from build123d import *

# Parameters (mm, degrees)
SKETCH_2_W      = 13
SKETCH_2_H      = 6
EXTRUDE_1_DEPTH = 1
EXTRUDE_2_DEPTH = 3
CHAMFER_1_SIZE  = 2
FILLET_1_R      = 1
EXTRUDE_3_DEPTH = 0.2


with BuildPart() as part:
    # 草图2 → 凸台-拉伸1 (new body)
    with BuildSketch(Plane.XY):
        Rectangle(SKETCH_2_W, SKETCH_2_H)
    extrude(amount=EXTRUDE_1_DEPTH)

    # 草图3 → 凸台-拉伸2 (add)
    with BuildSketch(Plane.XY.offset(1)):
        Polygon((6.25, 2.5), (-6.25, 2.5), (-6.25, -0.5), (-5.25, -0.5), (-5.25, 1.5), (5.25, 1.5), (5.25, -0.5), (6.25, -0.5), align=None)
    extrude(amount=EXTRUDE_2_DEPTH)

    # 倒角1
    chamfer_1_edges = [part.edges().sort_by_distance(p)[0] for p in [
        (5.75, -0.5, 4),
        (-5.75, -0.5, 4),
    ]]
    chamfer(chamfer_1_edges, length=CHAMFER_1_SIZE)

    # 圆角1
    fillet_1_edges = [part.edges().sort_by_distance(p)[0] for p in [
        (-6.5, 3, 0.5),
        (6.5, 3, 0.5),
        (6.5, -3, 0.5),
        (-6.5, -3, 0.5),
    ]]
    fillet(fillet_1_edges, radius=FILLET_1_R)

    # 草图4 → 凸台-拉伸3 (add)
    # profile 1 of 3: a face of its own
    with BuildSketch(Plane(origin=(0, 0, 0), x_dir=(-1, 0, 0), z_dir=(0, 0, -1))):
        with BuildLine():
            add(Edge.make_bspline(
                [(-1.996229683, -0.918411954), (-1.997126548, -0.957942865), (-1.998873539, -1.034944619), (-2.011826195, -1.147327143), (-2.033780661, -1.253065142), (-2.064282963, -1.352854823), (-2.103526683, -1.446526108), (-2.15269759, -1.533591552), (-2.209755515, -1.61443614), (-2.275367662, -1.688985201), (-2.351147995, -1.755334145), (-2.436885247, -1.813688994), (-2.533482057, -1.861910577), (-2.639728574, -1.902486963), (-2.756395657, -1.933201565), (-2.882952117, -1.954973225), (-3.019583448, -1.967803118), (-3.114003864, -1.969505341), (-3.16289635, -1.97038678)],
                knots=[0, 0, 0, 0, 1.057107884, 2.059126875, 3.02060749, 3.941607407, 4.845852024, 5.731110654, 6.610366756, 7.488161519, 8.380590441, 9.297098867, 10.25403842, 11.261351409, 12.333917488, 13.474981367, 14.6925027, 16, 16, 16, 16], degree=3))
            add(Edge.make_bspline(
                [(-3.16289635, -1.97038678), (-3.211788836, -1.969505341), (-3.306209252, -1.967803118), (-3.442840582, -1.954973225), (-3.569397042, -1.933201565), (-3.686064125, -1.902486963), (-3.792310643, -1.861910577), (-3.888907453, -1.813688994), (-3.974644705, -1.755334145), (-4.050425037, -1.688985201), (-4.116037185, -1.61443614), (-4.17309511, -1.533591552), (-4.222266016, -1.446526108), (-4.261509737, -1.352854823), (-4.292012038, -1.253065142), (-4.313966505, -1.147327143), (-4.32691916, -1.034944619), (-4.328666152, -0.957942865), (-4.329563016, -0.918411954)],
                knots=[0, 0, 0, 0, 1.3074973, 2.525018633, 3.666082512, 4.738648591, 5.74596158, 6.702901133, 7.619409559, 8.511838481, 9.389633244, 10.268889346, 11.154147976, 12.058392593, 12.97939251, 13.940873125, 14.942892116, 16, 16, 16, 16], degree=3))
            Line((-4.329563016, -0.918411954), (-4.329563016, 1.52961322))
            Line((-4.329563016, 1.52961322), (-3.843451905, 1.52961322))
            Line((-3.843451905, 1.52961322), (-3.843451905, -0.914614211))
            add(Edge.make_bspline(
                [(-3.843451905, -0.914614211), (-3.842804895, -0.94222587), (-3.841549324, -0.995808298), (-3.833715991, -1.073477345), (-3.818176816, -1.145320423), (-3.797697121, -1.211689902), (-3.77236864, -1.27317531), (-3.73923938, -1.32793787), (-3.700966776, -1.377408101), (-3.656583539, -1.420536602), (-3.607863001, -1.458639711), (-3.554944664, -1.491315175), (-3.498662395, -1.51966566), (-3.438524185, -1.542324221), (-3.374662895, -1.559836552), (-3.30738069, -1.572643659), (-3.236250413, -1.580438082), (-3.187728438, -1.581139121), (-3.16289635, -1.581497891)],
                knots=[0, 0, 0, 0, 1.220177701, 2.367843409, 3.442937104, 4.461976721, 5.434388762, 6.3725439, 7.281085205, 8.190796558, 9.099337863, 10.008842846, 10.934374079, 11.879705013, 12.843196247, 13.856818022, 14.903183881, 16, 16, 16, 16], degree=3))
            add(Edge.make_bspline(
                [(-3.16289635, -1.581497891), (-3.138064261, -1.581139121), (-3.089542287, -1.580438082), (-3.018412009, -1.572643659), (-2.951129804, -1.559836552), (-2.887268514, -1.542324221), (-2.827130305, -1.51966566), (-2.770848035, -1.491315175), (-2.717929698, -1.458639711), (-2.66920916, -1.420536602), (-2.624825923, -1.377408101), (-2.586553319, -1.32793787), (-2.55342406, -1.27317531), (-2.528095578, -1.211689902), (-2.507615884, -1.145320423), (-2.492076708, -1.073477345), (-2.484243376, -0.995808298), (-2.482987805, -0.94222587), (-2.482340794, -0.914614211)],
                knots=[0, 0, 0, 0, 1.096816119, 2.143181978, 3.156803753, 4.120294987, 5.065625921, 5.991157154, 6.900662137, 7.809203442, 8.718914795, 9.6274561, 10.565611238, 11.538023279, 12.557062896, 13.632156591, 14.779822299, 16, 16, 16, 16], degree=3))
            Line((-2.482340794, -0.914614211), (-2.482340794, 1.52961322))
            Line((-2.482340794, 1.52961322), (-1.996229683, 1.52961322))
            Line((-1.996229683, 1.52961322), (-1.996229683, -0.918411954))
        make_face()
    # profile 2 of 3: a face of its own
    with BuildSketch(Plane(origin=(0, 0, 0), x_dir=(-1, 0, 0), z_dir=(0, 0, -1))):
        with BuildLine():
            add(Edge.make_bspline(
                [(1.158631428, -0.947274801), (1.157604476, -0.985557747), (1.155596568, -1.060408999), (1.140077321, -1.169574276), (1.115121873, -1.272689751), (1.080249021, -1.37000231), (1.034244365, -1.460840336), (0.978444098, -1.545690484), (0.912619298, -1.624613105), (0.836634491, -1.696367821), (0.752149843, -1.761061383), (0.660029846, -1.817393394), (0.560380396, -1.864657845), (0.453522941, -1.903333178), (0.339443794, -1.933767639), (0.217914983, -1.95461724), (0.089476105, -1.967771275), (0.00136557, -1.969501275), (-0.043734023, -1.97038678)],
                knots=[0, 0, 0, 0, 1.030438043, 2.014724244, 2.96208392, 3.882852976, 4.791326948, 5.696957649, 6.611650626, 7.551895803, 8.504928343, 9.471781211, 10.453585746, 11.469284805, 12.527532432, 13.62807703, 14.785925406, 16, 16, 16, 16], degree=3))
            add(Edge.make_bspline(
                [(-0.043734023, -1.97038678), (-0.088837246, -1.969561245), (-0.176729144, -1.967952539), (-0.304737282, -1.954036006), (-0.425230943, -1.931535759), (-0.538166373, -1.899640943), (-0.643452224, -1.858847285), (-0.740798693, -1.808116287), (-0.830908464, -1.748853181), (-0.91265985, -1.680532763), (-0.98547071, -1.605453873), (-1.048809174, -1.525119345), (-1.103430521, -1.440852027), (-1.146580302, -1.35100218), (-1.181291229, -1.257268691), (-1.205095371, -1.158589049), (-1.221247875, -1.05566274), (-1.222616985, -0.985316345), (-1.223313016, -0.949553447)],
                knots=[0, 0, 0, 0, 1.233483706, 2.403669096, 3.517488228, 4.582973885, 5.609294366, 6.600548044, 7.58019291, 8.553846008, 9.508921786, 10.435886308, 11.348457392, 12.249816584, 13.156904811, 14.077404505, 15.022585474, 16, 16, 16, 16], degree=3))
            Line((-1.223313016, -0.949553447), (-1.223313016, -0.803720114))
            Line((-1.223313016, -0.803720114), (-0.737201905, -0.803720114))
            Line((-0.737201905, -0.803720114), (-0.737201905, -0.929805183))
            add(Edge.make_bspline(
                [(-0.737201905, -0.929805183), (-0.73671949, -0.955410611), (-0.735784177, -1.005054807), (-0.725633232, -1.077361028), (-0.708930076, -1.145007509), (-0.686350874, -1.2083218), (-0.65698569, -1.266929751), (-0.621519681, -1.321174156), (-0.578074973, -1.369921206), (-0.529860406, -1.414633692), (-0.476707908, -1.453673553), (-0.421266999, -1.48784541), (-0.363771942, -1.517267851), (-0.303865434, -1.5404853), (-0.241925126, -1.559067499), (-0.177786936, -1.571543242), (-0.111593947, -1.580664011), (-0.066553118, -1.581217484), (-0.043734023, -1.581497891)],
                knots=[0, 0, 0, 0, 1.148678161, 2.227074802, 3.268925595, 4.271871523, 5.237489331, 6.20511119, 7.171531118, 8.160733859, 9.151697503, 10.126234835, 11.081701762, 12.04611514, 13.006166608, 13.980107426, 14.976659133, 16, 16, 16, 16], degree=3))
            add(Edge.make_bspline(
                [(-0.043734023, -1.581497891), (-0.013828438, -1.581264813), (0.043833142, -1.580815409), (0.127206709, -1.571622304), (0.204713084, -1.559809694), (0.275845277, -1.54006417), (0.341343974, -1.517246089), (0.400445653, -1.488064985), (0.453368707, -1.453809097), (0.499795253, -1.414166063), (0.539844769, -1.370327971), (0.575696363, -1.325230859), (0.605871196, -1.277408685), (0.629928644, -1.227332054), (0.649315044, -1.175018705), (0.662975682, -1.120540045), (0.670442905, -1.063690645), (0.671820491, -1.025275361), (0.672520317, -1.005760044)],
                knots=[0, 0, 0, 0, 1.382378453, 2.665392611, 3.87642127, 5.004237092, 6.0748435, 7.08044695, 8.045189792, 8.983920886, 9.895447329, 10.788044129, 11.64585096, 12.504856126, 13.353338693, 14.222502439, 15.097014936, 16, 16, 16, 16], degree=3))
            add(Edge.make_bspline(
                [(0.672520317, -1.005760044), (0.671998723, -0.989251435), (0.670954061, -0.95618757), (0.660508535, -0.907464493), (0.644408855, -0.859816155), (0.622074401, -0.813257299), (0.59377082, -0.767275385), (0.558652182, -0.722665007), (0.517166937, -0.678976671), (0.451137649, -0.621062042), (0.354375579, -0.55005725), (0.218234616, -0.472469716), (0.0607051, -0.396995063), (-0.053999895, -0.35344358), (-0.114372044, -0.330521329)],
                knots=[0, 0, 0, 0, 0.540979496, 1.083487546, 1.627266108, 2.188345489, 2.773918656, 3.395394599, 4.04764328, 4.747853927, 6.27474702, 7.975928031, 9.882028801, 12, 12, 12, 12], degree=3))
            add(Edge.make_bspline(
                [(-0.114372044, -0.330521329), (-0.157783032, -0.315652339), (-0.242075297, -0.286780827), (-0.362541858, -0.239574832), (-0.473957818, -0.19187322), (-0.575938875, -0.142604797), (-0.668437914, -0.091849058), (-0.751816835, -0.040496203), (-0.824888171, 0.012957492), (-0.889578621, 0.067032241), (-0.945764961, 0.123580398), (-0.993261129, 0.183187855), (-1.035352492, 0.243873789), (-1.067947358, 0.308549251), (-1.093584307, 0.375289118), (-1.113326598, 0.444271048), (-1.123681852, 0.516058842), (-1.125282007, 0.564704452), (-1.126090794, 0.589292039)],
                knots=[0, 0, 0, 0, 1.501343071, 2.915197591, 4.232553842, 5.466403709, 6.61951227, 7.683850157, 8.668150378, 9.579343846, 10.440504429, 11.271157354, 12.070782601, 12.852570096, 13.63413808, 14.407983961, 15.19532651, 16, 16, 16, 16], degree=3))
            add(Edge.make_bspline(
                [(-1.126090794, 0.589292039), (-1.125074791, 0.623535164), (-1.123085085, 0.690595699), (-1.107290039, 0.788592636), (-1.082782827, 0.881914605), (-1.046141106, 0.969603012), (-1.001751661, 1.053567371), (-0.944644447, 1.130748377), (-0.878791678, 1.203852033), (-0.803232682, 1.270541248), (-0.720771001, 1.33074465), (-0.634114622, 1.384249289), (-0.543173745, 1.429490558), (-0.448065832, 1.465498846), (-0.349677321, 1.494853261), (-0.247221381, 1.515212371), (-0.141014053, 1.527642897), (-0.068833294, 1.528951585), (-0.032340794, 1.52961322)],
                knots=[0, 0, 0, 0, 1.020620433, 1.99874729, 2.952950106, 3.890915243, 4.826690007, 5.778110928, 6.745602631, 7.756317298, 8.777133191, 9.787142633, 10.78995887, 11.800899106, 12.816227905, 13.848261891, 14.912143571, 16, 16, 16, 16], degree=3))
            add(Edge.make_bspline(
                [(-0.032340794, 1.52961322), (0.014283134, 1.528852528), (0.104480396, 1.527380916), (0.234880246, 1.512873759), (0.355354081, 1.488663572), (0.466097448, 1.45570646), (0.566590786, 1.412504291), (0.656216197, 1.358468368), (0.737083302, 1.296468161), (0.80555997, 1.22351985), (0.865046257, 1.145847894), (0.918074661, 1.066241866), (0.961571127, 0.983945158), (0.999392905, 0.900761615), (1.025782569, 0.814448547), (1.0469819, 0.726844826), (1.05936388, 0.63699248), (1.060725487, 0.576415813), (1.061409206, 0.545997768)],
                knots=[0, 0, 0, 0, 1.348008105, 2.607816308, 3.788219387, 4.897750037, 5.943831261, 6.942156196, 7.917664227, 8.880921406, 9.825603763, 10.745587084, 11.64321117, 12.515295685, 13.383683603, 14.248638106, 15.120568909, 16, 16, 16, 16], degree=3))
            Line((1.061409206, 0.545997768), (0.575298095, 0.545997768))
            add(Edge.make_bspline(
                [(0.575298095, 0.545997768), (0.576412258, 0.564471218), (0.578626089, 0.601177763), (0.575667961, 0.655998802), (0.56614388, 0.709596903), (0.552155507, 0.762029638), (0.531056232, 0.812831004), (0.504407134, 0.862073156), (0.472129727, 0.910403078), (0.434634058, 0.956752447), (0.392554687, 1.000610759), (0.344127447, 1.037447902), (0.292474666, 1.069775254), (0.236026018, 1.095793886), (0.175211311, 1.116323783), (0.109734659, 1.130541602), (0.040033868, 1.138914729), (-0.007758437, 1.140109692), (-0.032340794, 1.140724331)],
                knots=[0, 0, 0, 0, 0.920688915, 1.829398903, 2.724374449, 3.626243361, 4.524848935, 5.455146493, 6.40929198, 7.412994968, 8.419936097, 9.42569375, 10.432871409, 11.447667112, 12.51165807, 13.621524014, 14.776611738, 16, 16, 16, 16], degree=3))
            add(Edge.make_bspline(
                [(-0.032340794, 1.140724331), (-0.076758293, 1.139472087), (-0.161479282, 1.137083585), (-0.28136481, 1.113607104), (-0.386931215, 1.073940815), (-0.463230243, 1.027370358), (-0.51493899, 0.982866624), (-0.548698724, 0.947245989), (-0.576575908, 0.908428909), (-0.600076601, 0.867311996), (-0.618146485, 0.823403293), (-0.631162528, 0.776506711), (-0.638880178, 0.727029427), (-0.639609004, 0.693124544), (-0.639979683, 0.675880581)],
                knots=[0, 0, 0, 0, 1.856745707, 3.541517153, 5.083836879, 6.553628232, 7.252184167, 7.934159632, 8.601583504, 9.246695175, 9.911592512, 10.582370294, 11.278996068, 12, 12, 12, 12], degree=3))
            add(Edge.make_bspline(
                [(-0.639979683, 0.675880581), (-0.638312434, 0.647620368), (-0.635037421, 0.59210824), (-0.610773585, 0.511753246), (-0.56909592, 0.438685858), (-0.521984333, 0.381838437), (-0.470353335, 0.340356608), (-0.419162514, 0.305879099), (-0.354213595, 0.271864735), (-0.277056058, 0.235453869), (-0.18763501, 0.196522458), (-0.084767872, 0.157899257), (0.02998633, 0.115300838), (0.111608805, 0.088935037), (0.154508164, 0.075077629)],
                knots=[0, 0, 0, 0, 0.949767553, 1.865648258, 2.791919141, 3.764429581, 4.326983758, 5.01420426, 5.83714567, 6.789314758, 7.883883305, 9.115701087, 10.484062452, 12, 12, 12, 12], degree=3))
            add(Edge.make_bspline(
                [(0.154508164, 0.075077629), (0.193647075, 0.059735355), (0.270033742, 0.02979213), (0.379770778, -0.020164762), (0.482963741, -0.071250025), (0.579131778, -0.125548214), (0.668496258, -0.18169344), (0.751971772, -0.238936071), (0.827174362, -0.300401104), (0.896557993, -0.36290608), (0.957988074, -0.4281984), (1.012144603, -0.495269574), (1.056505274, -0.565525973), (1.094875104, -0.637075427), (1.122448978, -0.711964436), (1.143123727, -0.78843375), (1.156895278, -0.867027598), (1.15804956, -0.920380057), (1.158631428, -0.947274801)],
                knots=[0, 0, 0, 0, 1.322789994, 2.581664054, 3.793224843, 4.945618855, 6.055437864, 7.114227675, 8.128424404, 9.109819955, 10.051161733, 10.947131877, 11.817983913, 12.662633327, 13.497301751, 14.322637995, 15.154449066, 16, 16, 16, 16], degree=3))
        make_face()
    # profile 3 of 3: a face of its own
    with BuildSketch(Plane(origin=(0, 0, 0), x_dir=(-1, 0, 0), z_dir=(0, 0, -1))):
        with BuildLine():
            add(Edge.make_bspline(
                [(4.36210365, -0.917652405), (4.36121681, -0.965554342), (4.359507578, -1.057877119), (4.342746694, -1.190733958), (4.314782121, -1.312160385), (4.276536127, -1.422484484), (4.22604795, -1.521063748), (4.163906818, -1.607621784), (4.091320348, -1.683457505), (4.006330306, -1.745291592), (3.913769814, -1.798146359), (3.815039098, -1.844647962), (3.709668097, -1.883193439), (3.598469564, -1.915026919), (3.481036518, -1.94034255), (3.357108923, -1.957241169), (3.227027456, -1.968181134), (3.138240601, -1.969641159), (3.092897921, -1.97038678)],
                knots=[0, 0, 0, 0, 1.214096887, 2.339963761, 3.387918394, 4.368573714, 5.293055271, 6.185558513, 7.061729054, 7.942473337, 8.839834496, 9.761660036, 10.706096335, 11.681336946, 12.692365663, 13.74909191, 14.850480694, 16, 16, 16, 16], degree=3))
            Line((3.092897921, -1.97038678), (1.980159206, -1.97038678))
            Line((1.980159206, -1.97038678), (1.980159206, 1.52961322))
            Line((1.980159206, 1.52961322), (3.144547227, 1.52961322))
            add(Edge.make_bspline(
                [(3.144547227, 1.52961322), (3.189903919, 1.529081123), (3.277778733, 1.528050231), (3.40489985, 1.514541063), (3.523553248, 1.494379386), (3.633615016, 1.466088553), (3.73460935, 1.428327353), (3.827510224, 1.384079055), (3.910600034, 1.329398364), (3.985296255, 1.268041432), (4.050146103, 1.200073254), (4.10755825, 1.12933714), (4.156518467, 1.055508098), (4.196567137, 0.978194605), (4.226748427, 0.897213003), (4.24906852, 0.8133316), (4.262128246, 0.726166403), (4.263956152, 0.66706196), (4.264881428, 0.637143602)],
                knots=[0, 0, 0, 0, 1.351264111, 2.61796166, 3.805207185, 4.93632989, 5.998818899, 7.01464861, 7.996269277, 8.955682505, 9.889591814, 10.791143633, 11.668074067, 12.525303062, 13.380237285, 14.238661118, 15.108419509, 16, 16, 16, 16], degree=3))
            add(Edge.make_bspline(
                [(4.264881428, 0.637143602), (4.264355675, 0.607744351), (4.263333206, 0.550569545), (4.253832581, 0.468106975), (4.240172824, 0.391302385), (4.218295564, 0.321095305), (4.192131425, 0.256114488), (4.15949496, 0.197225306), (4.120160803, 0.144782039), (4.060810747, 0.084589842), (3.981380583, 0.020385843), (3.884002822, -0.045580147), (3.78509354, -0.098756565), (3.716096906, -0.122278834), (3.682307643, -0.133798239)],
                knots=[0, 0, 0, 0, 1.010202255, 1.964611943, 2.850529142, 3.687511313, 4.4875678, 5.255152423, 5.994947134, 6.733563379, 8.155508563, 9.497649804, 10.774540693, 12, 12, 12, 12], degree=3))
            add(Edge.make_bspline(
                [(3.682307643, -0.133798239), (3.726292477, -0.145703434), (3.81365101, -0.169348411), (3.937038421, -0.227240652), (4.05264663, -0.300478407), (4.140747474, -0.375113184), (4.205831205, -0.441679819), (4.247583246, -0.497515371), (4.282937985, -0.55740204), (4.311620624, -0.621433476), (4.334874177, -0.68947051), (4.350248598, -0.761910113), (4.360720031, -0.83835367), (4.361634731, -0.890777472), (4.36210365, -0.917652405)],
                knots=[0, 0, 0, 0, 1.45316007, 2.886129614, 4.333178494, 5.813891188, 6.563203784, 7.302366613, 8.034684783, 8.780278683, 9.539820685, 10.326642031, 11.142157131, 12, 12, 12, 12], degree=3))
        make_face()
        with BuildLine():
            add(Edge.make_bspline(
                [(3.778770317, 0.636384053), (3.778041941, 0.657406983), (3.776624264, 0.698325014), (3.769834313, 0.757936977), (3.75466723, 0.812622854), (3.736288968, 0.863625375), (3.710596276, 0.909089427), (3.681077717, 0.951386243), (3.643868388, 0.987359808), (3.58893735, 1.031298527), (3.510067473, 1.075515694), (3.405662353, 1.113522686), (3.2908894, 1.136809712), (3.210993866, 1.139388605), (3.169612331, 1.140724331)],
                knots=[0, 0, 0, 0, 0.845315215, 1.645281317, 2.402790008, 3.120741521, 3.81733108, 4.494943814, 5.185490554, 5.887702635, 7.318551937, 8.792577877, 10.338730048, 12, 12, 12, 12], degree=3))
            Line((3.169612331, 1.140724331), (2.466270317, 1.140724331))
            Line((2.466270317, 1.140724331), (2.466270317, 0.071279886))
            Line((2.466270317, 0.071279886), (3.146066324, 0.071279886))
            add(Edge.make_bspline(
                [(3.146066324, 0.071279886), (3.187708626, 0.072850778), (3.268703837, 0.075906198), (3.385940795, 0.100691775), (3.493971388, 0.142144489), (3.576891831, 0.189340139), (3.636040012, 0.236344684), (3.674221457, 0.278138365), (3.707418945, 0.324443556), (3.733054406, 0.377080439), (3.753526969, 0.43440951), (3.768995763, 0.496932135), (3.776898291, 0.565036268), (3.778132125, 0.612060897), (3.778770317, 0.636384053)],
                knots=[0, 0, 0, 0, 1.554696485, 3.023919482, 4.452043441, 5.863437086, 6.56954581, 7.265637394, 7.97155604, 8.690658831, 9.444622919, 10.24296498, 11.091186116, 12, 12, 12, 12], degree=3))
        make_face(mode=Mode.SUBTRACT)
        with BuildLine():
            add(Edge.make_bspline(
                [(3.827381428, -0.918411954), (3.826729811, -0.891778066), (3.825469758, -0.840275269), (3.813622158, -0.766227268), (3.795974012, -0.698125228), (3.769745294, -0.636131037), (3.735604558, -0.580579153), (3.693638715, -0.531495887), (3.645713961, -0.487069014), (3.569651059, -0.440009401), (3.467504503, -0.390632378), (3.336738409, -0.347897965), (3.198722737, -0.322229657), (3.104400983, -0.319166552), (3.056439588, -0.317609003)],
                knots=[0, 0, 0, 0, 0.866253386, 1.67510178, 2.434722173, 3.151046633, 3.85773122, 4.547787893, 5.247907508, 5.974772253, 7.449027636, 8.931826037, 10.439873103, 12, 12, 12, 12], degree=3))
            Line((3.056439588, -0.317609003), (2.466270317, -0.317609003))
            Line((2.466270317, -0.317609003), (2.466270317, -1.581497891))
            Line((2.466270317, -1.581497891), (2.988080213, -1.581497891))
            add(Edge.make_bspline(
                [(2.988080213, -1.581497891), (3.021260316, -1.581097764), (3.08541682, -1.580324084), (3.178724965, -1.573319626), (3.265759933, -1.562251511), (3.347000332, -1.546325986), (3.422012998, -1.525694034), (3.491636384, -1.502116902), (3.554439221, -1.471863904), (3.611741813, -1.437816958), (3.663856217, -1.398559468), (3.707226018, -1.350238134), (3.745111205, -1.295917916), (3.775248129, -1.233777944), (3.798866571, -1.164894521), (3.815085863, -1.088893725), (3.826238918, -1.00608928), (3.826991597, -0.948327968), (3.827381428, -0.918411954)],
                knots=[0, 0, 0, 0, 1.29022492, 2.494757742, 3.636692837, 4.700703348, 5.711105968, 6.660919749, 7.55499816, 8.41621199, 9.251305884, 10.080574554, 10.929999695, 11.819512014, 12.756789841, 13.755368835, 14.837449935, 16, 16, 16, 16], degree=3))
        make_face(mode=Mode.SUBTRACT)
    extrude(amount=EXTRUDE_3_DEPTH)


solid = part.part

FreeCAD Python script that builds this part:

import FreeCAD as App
import Part
import Sketcher


def edges_at(feature, points):
    """Names of the edges that pass closest to the given points."""
    edges = feature.Shape.Edges
    near = lambda p: min(range(len(edges)), key=lambda i: edges[i].distToShape(Part.Vertex(*p))[0])
    return sorted({f"Edge{near(p) + 1}" for p in points})


def add_polygon(sketch, points):
    """Adds a closed chain of lines whose ends are joined by coincident constraints."""
    first, n = sketch.GeometryCount, len(points)
    for a, b in zip(points, points[1:] + points[:1]):
        sketch.addGeometry(Part.LineSegment(App.Vector(*a, 0), App.Vector(*b, 0)), False)
    for i in range(n):
        sketch.addConstraint(Sketcher.Constraint("Coincident", first + i, 2, first + (i + 1) % n, 1))

doc = App.newDocument("Part")
body = doc.addObject("PartDesign::Body", "Body")

# Sketch on XY plane
sketch1 = body.newObject("Sketcher::SketchObject", "Sketch")
sketch1.AttachmentSupport = (doc.getObject("XY_Plane"), [""])
sketch1.MapMode = "FlatFace"
add_polygon(sketch1, [(-6.5, 3), (-6.5, -3), (6.5, -3), (6.5, 3)])  # lines 0-3
sketch1.addConstraint([
    Sketcher.Constraint("Vertical", 0),
    Sketcher.Constraint("Horizontal", 1),
    Sketcher.Constraint("Vertical", 2),
    Sketcher.Constraint("Horizontal", 3),
    Sketcher.Constraint("Symmetric", 0, 2, 2, 2, -1, 1),
    Sketcher.Constraint("DistanceX", 1, 1, 1, 2, 13.0),
    Sketcher.Constraint("DistanceY", 0, 2, 0, 1, 6.0),
])
pad1 = body.newObject("PartDesign::Pad", "Pad")
pad1.Profile = sketch1
pad1.Length = 1

# Sketch on XY plane
sketch2 = body.newObject("Sketcher::SketchObject", "Sketch001")
sketch2.AttachmentSupport = (doc.getObject("XY_Plane"), [""])
sketch2.MapMode = "FlatFace"
sketch2.AttachmentOffset = App.Placement(App.Vector(0, 0, 1), App.Rotation())
add_polygon(sketch2, [(6.25, 2.5), (-6.25, 2.5), (-6.25, -0.5), (-5.25, -0.5), (-5.25, 1.5), (5.25, 1.5), (5.25, -0.5), (6.25, -0.5)])  # lines 0-7
sketch2.addConstraint([
    Sketcher.Constraint("Horizontal", 0),
    Sketcher.Constraint("Vertical", 1),
    Sketcher.Constraint("Horizontal", 2),
    Sketcher.Constraint("Vertical", 3),
    Sketcher.Constraint("Horizontal", 4),
    Sketcher.Constraint("Vertical", 5),
    Sketcher.Constraint("Horizontal", 6),
    Sketcher.Constraint("Vertical", 7),
    Sketcher.Constraint("Symmetric", 2, 2, 5, 2, -2),
    Sketcher.Constraint("Equal", 2, 6),
    Sketcher.Constraint("DistanceX", 2, 1, 2, 2, 1.0),
    Sketcher.Constraint("DistanceY", 1, 2, 1, 1, 3.0),
    Sketcher.Constraint("DistanceY", 3, 1, 3, 2, 2.0),
    Sketcher.Constraint("DistanceX", 0, 2, 0, 1, 12.5),
    Sketcher.Constraint("DistanceY", -1, 1, 0, 2, 2.5),
])
pad2 = body.newObject("PartDesign::Pad", "Pad001")
pad2.Profile = sketch2
pad2.Length = 3
doc.recompute()

chamfer = body.newObject("PartDesign::Chamfer", "Chamfer")
chamfer.Base = (pad2, edges_at(pad2, [(5.75, -0.5, 4), (-5.75, -0.5, 4)]))
chamfer.Size = 2
doc.recompute()

fillet = body.newObject("PartDesign::Fillet", "Fillet")
fillet.Base = (chamfer, edges_at(chamfer, [
    (-6.5, 3, 0.5),
    (6.5, 3, 0.5),
    (6.5, -3, 0.5),
    (-6.5, -3, 0.5),
]))
fillet.Radius = 1

# Sketch on XY plane
sketch3 = body.newObject("Sketcher::SketchObject", "Sketch002")
sketch3.AttachmentSupport = (doc.getObject("XY_Plane"), [""])
sketch3.MapMode = "FlatFace"
sketch3.addGeometry([
    Part.BSplineCurve([App.Vector(1.99623, -0.918412, 0), App.Vector(1.997127, -0.957943, 0), App.Vector(1.998874, -1.034945, 0), App.Vector(2.011826, -1.147327, 0), App.Vector(2.033781, -1.253065, 0), App.Vector(2.064283, -1.352855, 0), App.Vector(2.103527, -1.446526, 0), App.Vector(2.152698, -1.533592, 0), App.Vector(2.209756, -1.614436, 0), App.Vector(2.275368, -1.688985, 0), App.Vector(2.351148, -1.755334, 0), App.Vector(2.436885, -1.813689, 0), App.Vector(2.533482, -1.861911, 0), App.Vector(2.639729, -1.902487, 0), App.Vector(2.756396, -1.933202, 0), App.Vector(2.882952, -1.954973, 0), App.Vector(3.019583, -1.967803, 0), App.Vector(3.114004, -1.969505, 0), App.Vector(3.162896, -1.970387, 0)], [4, 1, 1, 1, 1, 1, 1, 1, 1, 1, 1, 1, 1, 1, 1, 1, 4], [0, 1.057107884, 2.059126875, 3.02060749, 3.941607407, 4.845852024, 5.731110654, 6.610366756, 7.488161519, 8.380590441, 9.297098867, 10.25403842, 11.261351409, 12.333917488, 13.474981367, 14.6925027, 16], False, 3, [1, 1, 1, 1, 1, 1, 1, 1, 1, 1, 1, 1, 1, 1, 1, 1, 1, 1, 1], False),  # 0
    Part.LineSegment(App.Vector(1.99623, -0.918412, 0), App.Vector(1.99623, 1.529613, 0)),  # 1
    Part.LineSegment(App.Vector(1.99623, 1.529613, 0), App.Vector(2.482341, 1.529613, 0)),  # 2
    Part.LineSegment(App.Vector(2.482341, 1.529613, 0), App.Vector(2.482341, -0.914614, 0)),  # 3
    Part.BSplineCurve([App.Vector(3.162896, -1.581498, 0), App.Vector(3.138064, -1.581139, 0), App.Vector(3.089542, -1.580438, 0), App.Vector(3.018412, -1.572644, 0), App.Vector(2.95113, -1.559837, 0), App.Vector(2.887269, -1.542324, 0), App.Vector(2.82713, -1.519666, 0), App.Vector(2.770848, -1.491315, 0), App.Vector(2.71793, -1.45864, 0), App.Vector(2.669209, -1.420537, 0), App.Vector(2.624826, -1.377408, 0), App.Vector(2.586553, -1.327938, 0), App.Vector(2.553424, -1.273175, 0), App.Vector(2.528096, -1.21169, 0), App.Vector(2.507616, -1.14532, 0), App.Vector(2.492077, -1.073477, 0), App.Vector(2.484243, -0.995808, 0), App.Vector(2.482988, -0.942226, 0), App.Vector(2.482341, -0.914614, 0)], [4, 1, 1, 1, 1, 1, 1, 1, 1, 1, 1, 1, 1, 1, 1, 1, 4], [0, 1.096816119, 2.143181978, 3.156803753, 4.120294987, 5.065625921, 5.991157154, 6.900662137, 7.809203442, 8.718914795, 9.6274561, 10.565611238, 11.538023279, 12.557062896, 13.632156591, 14.779822299, 16], False, 3, [1, 1, 1, 1, 1, 1, 1, 1, 1, 1, 1, 1, 1, 1, 1, 1, 1, 1, 1], False),  # 4
    Part.BSplineCurve([App.Vector(3.843452, -0.914614, 0), App.Vector(3.842805, -0.942226, 0), App.Vector(3.841549, -0.995808, 0), App.Vector(3.833716, -1.073477, 0), App.Vector(3.818177, -1.14532, 0), App.Vector(3.797697, -1.21169, 0), App.Vector(3.772369, -1.273175, 0), App.Vector(3.739239, -1.327938, 0), App.Vector(3.700967, -1.377408, 0), App.Vector(3.656584, -1.420537, 0), App.Vector(3.607863, -1.45864, 0), App.Vector(3.554945, -1.491315, 0), App.Vector(3.498662, -1.519666, 0), App.Vector(3.438524, -1.542324, 0), App.Vector(3.374663, -1.559837, 0), App.Vector(3.307381, -1.572644, 0), App.Vector(3.23625, -1.580438, 0), App.Vector(3.187728, -1.581139, 0), App.Vector(3.162896, -1.581498, 0)], [4, 1, 1, 1, 1, 1, 1, 1, 1, 1, 1, 1, 1, 1, 1, 1, 4], [0, 1.220177701, 2.367843409, 3.442937104, 4.461976721, 5.434388762, 6.3725439, 7.281085205, 8.190796558, 9.099337863, 10.008842846, 10.934374079, 11.879705013, 12.843196247, 13.856818022, 14.903183881, 16], False, 3, [1, 1, 1, 1, 1, 1, 1, 1, 1, 1, 1, 1, 1, 1, 1, 1, 1, 1, 1], False),  # 5
    Part.LineSegment(App.Vector(3.843452, -0.914614, 0), App.Vector(3.843452, 1.529613, 0)),  # 6
    Part.LineSegment(App.Vector(3.843452, 1.529613, 0), App.Vector(4.329563, 1.529613, 0)),  # 7
    Part.LineSegment(App.Vector(4.329563, 1.529613, 0), App.Vector(4.329563, -0.918412, 0)),  # 8
    Part.BSplineCurve([App.Vector(3.162896, -1.970387, 0), App.Vector(3.211789, -1.969505, 0), App.Vector(3.306209, -1.967803, 0), App.Vector(3.442841, -1.954973, 0), App.Vector(3.569397, -1.933202, 0), App.Vector(3.686064, -1.902487, 0), App.Vector(3.792311, -1.861911, 0), App.Vector(3.888907, -1.813689, 0), App.Vector(3.974645, -1.755334, 0), App.Vector(4.050425, -1.688985, 0), App.Vector(4.116037, -1.614436, 0), App.Vector(4.173095, -1.533592, 0), App.Vector(4.222266, -1.446526, 0), App.Vector(4.26151, -1.352855, 0), App.Vector(4.292012, -1.253065, 0), App.Vector(4.313967, -1.147327, 0), App.Vector(4.326919, -1.034945, 0), App.Vector(4.328666, -0.957943, 0), App.Vector(4.329563, -0.918412, 0)], [4, 1, 1, 1, 1, 1, 1, 1, 1, 1, 1, 1, 1, 1, 1, 1, 4], [0, 1.3074973, 2.525018633, 3.666082512, 4.738648591, 5.74596158, 6.702901133, 7.619409559, 8.511838481, 9.389633244, 10.268889346, 11.154147976, 12.058392593, 12.97939251, 13.940873125, 14.942892116, 16], False, 3, [1, 1, 1, 1, 1, 1, 1, 1, 1, 1, 1, 1, 1, 1, 1, 1, 1, 1, 1], False),  # 9
    Part.BSplineCurve([App.Vector(-1.158631, -0.947275, 0), App.Vector(-1.157604, -0.985558, 0), App.Vector(-1.155597, -1.060409, 0), App.Vector(-1.140077, -1.169574, 0), App.Vector(-1.115122, -1.27269, 0), App.Vector(-1.080249, -1.370002, 0), App.Vector(-1.034244, -1.46084, 0), App.Vector(-0.978444, -1.54569, 0), App.Vector(-0.912619, -1.624613, 0), App.Vector(-0.836634, -1.696368, 0), App.Vector(-0.75215, -1.761061, 0), App.Vector(-0.66003, -1.817393, 0), App.Vector(-0.56038, -1.864658, 0), App.Vector(-0.453523, -1.903333, 0), App.Vector(-0.339444, -1.933768, 0), App.Vector(-0.217915, -1.954617, 0), App.Vector(-0.089476, -1.967771, 0), App.Vector(-0.001366, -1.969501, 0), App.Vector(0.043734, -1.970387, 0)], [4, 1, 1, 1, 1, 1, 1, 1, 1, 1, 1, 1, 1, 1, 1, 1, 4], [0, 1.030438043, 2.014724244, 2.96208392, 3.882852976, 4.791326948, 5.696957649, 6.611650626, 7.551895803, 8.504928343, 9.471781211, 10.453585746, 11.469284805, 12.527532432, 13.62807703, 14.785925406, 16], False, 3, [1, 1, 1, 1, 1, 1, 1, 1, 1, 1, 1, 1, 1, 1, 1, 1, 1, 1, 1], False),  # 10
    Part.BSplineCurve([App.Vector(-0.154508, 0.075078, 0), App.Vector(-0.193647, 0.059735, 0), App.Vector(-0.270034, 0.029792, 0), App.Vector(-0.379771, -0.020165, 0), App.Vector(-0.482964, -0.07125, 0), App.Vector(-0.579132, -0.125548, 0), App.Vector(-0.668496, -0.181693, 0), App.Vector(-0.751972, -0.238936, 0), App.Vector(-0.827174, -0.300401, 0), App.Vector(-0.896558, -0.362906, 0), App.Vector(-0.957988, -0.428198, 0), App.Vector(-1.012145, -0.49527, 0), App.Vector(-1.056505, -0.565526, 0), App.Vector(-1.094875, -0.637075, 0), App.Vector(-1.122449, -0.711964, 0), App.Vector(-1.143124, -0.788434, 0), App.Vector(-1.156895, -0.867028, 0), App.Vector(-1.15805, -0.92038, 0), App.Vector(-1.158631, -0.947275, 0)], [4, 1, 1, 1, 1, 1, 1, 1, 1, 1, 1, 1, 1, 1, 1, 1, 4], [0, 1.322789994, 2.581664054, 3.793224843, 4.945618855, 6.055437864, 7.114227675, 8.128424404, 9.109819955, 10.051161733, 10.947131877, 11.817983913, 12.662633327, 13.497301751, 14.322637995, 15.154449066, 16], False, 3, [1, 1, 1, 1, 1, 1, 1, 1, 1, 1, 1, 1, 1, 1, 1, 1, 1, 1, 1], False),  # 11
    Part.BSplineCurve([App.Vector(0.63998, 0.675881, 0), App.Vector(0.638312, 0.64762, 0), App.Vector(0.635037, 0.592108, 0), App.Vector(0.610774, 0.511753, 0), App.Vector(0.569096, 0.438686, 0), App.Vector(0.521984, 0.381838, 0), App.Vector(0.470353, 0.340357, 0), App.Vector(0.419163, 0.305879, 0), App.Vector(0.354214, 0.271865, 0), App.Vector(0.277056, 0.235454, 0), App.Vector(0.187635, 0.196522, 0), App.Vector(0.084768, 0.157899, 0), App.Vector(-0.029986, 0.115301, 0), App.Vector(-0.111609, 0.088935, 0), App.Vector(-0.154508, 0.075078, 0)], [4, 1, 1, 1, 1, 1, 1, 1, 1, 1, 1, 1, 4], [0, 0.949767553, 1.865648258, 2.791919141, 3.764429581, 4.326983758, 5.01420426, 5.83714567, 6.789314758, 7.883883305, 9.115701087, 10.484062452, 12], False, 3, [1, 1, 1, 1, 1, 1, 1, 1, 1, 1, 1, 1, 1, 1, 1], False),  # 12
    Part.BSplineCurve([App.Vector(0.032341, 1.140724, 0), App.Vector(0.076758, 1.139472, 0), App.Vector(0.161479, 1.137084, 0), App.Vector(0.281365, 1.113607, 0), App.Vector(0.386931, 1.073941, 0), App.Vector(0.46323, 1.02737, 0), App.Vector(0.514939, 0.982867, 0), App.Vector(0.548699, 0.947246, 0), App.Vector(0.576576, 0.908429, 0), App.Vector(0.600077, 0.867312, 0), App.Vector(0.618146, 0.823403, 0), App.Vector(0.631163, 0.776507, 0), App.Vector(0.63888, 0.727029, 0), App.Vector(0.639609, 0.693125, 0), App.Vector(0.63998, 0.675881, 0)], [4, 1, 1, 1, 1, 1, 1, 1, 1, 1, 1, 1, 4], [0, 1.856745707, 3.541517153, 5.083836879, 6.553628232, 7.252184167, 7.934159632, 8.601583504, 9.246695175, 9.911592512, 10.582370294, 11.278996068, 12], False, 3, [1, 1, 1, 1, 1, 1, 1, 1, 1, 1, 1, 1, 1, 1, 1], False),  # 13
    Part.BSplineCurve([App.Vector(-0.575298, 0.545998, 0), App.Vector(-0.576412, 0.564471, 0), App.Vector(-0.578626, 0.601178, 0), App.Vector(-0.575668, 0.655999, 0), App.Vector(-0.566144, 0.709597, 0), App.Vector(-0.552156, 0.76203, 0), App.Vector(-0.531056, 0.812831, 0), App.Vector(-0.504407, 0.862073, 0), App.Vector(-0.47213, 0.910403, 0), App.Vector(-0.434634, 0.956752, 0), App.Vector(-0.392555, 1.000611, 0), App.Vector(-0.344127, 1.037448, 0), App.Vector(-0.292475, 1.069775, 0), App.Vector(-0.236026, 1.095794, 0), App.Vector(-0.175211, 1.116324, 0), App.Vector(-0.109735, 1.130542, 0), App.Vector(-0.040034, 1.138915, 0), App.Vector(0.007758, 1.14011, 0), App.Vector(0.032341, 1.140724, 0)], [4, 1, 1, 1, 1, 1, 1, 1, 1, 1, 1, 1, 1, 1, 1, 1, 4], [0, 0.920688915, 1.829398903, 2.724374449, 3.626243361, 4.524848935, 5.455146493, 6.40929198, 7.412994968, 8.419936097, 9.42569375, 10.432871409, 11.447667112, 12.51165807, 13.621524014, 14.776611738, 16], False, 3, [1, 1, 1, 1, 1, 1, 1, 1, 1, 1, 1, 1, 1, 1, 1, 1, 1, 1, 1], False),  # 14
    Part.LineSegment(App.Vector(-0.575298, 0.545998, 0), App.Vector(-1.061409, 0.545998, 0)),  # 15
    Part.BSplineCurve([App.Vector(0.032341, 1.529613, 0), App.Vector(-0.014283, 1.528853, 0), App.Vector(-0.10448, 1.527381, 0), App.Vector(-0.23488, 1.512874, 0), App.Vector(-0.355354, 1.488664, 0), App.Vector(-0.466097, 1.455706, 0), App.Vector(-0.566591, 1.412504, 0), App.Vector(-0.656216, 1.358468, 0), App.Vector(-0.737083, 1.296468, 0), App.Vector(-0.80556, 1.22352, 0), App.Vector(-0.865046, 1.145848, 0), App.Vector(-0.918075, 1.066242, 0), App.Vector(-0.961571, 0.983945, 0), App.Vector(-0.999393, 0.900762, 0), App.Vector(-1.025783, 0.814449, 0), App.Vector(-1.046982, 0.726845, 0), App.Vector(-1.059364, 0.636992, 0), App.Vector(-1.060725, 0.576416, 0), App.Vector(-1.061409, 0.545998, 0)], [4, 1, 1, 1, 1, 1, 1, 1, 1, 1, 1, 1, 1, 1, 1, 1, 4], [0, 1.348008105, 2.607816308, 3.788219387, 4.897750037, 5.943831261, 6.942156196, 7.917664227, 8.880921406, 9.825603763, 10.745587084, 11.64321117, 12.515295685, 13.383683603, 14.248638106, 15.120568909, 16], False, 3, [1, 1, 1, 1, 1, 1, 1, 1, 1, 1, 1, 1, 1, 1, 1, 1, 1, 1, 1], False),  # 16
    Part.BSplineCurve([App.Vector(1.126091, 0.589292, 0), App.Vector(1.125075, 0.623535, 0), App.Vector(1.123085, 0.690596, 0), App.Vector(1.10729, 0.788593, 0), App.Vector(1.082783, 0.881915, 0), App.Vector(1.046141, 0.969603, 0), App.Vector(1.001752, 1.053567, 0), App.Vector(0.944644, 1.130748, 0), App.Vector(0.878792, 1.203852, 0), App.Vector(0.803233, 1.270541, 0), App.Vector(0.720771, 1.330745, 0), App.Vector(0.634115, 1.384249, 0), App.Vector(0.543174, 1.429491, 0), App.Vector(0.448066, 1.465499, 0), App.Vector(0.349677, 1.494853, 0), App.Vector(0.247221, 1.515212, 0), App.Vector(0.141014, 1.527643, 0), App.Vector(0.068833, 1.528952, 0), App.Vector(0.032341, 1.529613, 0)], [4, 1, 1, 1, 1, 1, 1, 1, 1, 1, 1, 1, 1, 1, 1, 1, 4], [0, 1.020620433, 1.99874729, 2.952950106, 3.890915243, 4.826690007, 5.778110928, 6.745602631, 7.756317298, 8.777133191, 9.787142633, 10.78995887, 11.800899106, 12.816227905, 13.848261891, 14.912143571, 16], False, 3, [1, 1, 1, 1, 1, 1, 1, 1, 1, 1, 1, 1, 1, 1, 1, 1, 1, 1, 1], False),  # 17
    Part.BSplineCurve([App.Vector(0.114372, -0.330521, 0), App.Vector(0.157783, -0.315652, 0), App.Vector(0.242075, -0.286781, 0), App.Vector(0.362542, -0.239575, 0), App.Vector(0.473958, -0.191873, 0), App.Vector(0.575939, -0.142605, 0), App.Vector(0.668438, -0.091849, 0), App.Vector(0.751817, -0.040496, 0), App.Vector(0.824888, 0.012957, 0), App.Vector(0.889579, 0.067032, 0), App.Vector(0.945765, 0.12358, 0), App.Vector(0.993261, 0.183188, 0), App.Vector(1.035352, 0.243874, 0), App.Vector(1.067947, 0.308549, 0), App.Vector(1.093584, 0.375289, 0), App.Vector(1.113327, 0.444271, 0), App.Vector(1.123682, 0.516059, 0), App.Vector(1.125282, 0.564704, 0), App.Vector(1.126091, 0.589292, 0)], [4, 1, 1, 1, 1, 1, 1, 1, 1, 1, 1, 1, 1, 1, 1, 1, 4], [0, 1.501343071, 2.915197591, 4.232553842, 5.466403709, 6.61951227, 7.683850157, 8.668150378, 9.579343846, 10.440504429, 11.271157354, 12.070782601, 12.852570096, 13.63413808, 14.407983961, 15.19532651, 16], False, 3, [1, 1, 1, 1, 1, 1, 1, 1, 1, 1, 1, 1, 1, 1, 1, 1, 1, 1, 1], False),  # 18
    Part.BSplineCurve([App.Vector(-0.67252, -1.00576, 0), App.Vector(-0.671999, -0.989251, 0), App.Vector(-0.670954, -0.956188, 0), App.Vector(-0.660509, -0.907464, 0), App.Vector(-0.644409, -0.859816, 0), App.Vector(-0.622074, -0.813257, 0), App.Vector(-0.593771, -0.767275, 0), App.Vector(-0.558652, -0.722665, 0), App.Vector(-0.517167, -0.678977, 0), App.Vector(-0.451138, -0.621062, 0), App.Vector(-0.354376, -0.550057, 0), App.Vector(-0.218235, -0.47247, 0), App.Vector(-0.060705, -0.396995, 0), App.Vector(0.054, -0.353444, 0), App.Vector(0.114372, -0.330521, 0)], [4, 1, 1, 1, 1, 1, 1, 1, 1, 1, 1, 1, 4], [0, 0.540979496, 1.083487546, 1.627266108, 2.188345489, 2.773918656, 3.395394599, 4.04764328, 4.747853927, 6.27474702, 7.975928031, 9.882028801, 12], False, 3, [1, 1, 1, 1, 1, 1, 1, 1, 1, 1, 1, 1, 1, 1, 1], False),  # 19
    Part.BSplineCurve([App.Vector(0.043734, -1.581498, 0), App.Vector(0.013828, -1.581265, 0), App.Vector(-0.043833, -1.580815, 0), App.Vector(-0.127207, -1.571622, 0), App.Vector(-0.204713, -1.55981, 0), App.Vector(-0.275845, -1.540064, 0), App.Vector(-0.341344, -1.517246, 0), App.Vector(-0.400446, -1.488065, 0), App.Vector(-0.453369, -1.453809, 0), App.Vector(-0.499795, -1.414166, 0), App.Vector(-0.539845, -1.370328, 0), App.Vector(-0.575696, -1.325231, 0), App.Vector(-0.605871, -1.277409, 0), App.Vector(-0.629929, -1.227332, 0), App.Vector(-0.649315, -1.175019, 0), App.Vector(-0.662976, -1.12054, 0), App.Vector(-0.670443, -1.063691, 0), App.Vector(-0.67182, -1.025275, 0), App.Vector(-0.67252, -1.00576, 0)], [4, 1, 1, 1, 1, 1, 1, 1, 1, 1, 1, 1, 1, 1, 1, 1, 4], [0, 1.382378453, 2.665392611, 3.87642127, 5.004237092, 6.0748435, 7.08044695, 8.045189792, 8.983920886, 9.895447329, 10.788044129, 11.64585096, 12.504856126, 13.353338693, 14.222502439, 15.097014936, 16], False, 3, [1, 1, 1, 1, 1, 1, 1, 1, 1, 1, 1, 1, 1, 1, 1, 1, 1, 1, 1], False),  # 20
    Part.BSplineCurve([App.Vector(0.737202, -0.929805, 0), App.Vector(0.736719, -0.955411, 0), App.Vector(0.735784, -1.005055, 0), App.Vector(0.725633, -1.077361, 0), App.Vector(0.70893, -1.145008, 0), App.Vector(0.686351, -1.208322, 0), App.Vector(0.656986, -1.26693, 0), App.Vector(0.62152, -1.321174, 0), App.Vector(0.578075, -1.369921, 0), App.Vector(0.52986, -1.414634, 0), App.Vector(0.476708, -1.453674, 0), App.Vector(0.421267, -1.487845, 0), App.Vector(0.363772, -1.517268, 0), App.Vector(0.303865, -1.540485, 0), App.Vector(0.241925, -1.559067, 0), App.Vector(0.177787, -1.571543, 0), App.Vector(0.111594, -1.580664, 0), App.Vector(0.066553, -1.581217, 0), App.Vector(0.043734, -1.581498, 0)], [4, 1, 1, 1, 1, 1, 1, 1, 1, 1, 1, 1, 1, 1, 1, 1, 4], [0, 1.148678161, 2.227074802, 3.268925595, 4.271871523, 5.237489331, 6.20511119, 7.171531118, 8.160733859, 9.151697503, 10.126234835, 11.081701762, 12.04611514, 13.006166608, 13.980107426, 14.976659133, 16], False, 3, [1, 1, 1, 1, 1, 1, 1, 1, 1, 1, 1, 1, 1, 1, 1, 1, 1, 1, 1], False),  # 21
    Part.LineSegment(App.Vector(0.737202, -0.929805, 0), App.Vector(0.737202, -0.80372, 0)),  # 22
    Part.LineSegment(App.Vector(0.737202, -0.80372, 0), App.Vector(1.223313, -0.80372, 0)),  # 23
    Part.LineSegment(App.Vector(1.223313, -0.80372, 0), App.Vector(1.223313, -0.949553, 0)),  # 24
    Part.BSplineCurve([App.Vector(0.043734, -1.970387, 0), App.Vector(0.088837, -1.969561, 0), App.Vector(0.176729, -1.967953, 0), App.Vector(0.304737, -1.954036, 0), App.Vector(0.425231, -1.931536, 0), App.Vector(0.538166, -1.899641, 0), App.Vector(0.643452, -1.858847, 0), App.Vector(0.740799, -1.808116, 0), App.Vector(0.830908, -1.748853, 0), App.Vector(0.91266, -1.680533, 0), App.Vector(0.985471, -1.605454, 0), App.Vector(1.048809, -1.525119, 0), App.Vector(1.103431, -1.440852, 0), App.Vector(1.14658, -1.351002, 0), App.Vector(1.181291, -1.257269, 0), App.Vector(1.205095, -1.158589, 0), App.Vector(1.221248, -1.055663, 0), App.Vector(1.222617, -0.985316, 0), App.Vector(1.223313, -0.949553, 0)], [4, 1, 1, 1, 1, 1, 1, 1, 1, 1, 1, 1, 1, 1, 1, 1, 4], [0, 1.233483706, 2.403669096, 3.517488228, 4.582973885, 5.609294366, 6.600548044, 7.58019291, 8.553846008, 9.508921786, 10.435886308, 11.348457392, 12.249816584, 13.156904811, 14.077404505, 15.022585474, 16], False, 3, [1, 1, 1, 1, 1, 1, 1, 1, 1, 1, 1, 1, 1, 1, 1, 1, 1, 1, 1], False),  # 25
    Part.BSplineCurve([App.Vector(-4.362104, -0.917652, 0), App.Vector(-4.361217, -0.965554, 0), App.Vector(-4.359508, -1.057877, 0), App.Vector(-4.342747, -1.190734, 0), App.Vector(-4.314782, -1.31216, 0), App.Vector(-4.276536, -1.422484, 0), App.Vector(-4.226048, -1.521064, 0), App.Vector(-4.163907, -1.607622, 0), App.Vector(-4.09132, -1.683458, 0), App.Vector(-4.00633, -1.745292, 0), App.Vector(-3.91377, -1.798146, 0), App.Vector(-3.815039, -1.844648, 0), App.Vector(-3.709668, -1.883193, 0), App.Vector(-3.59847, -1.915027, 0), App.Vector(-3.481037, -1.940343, 0), App.Vector(-3.357109, -1.957241, 0), App.Vector(-3.227027, -1.968181, 0), App.Vector(-3.138241, -1.969641, 0), App.Vector(-3.092898, -1.970387, 0)], [4, 1, 1, 1, 1, 1, 1, 1, 1, 1, 1, 1, 1, 1, 1, 1, 4], [0, 1.214096887, 2.339963761, 3.387918394, 4.368573714, 5.293055271, 6.185558513, 7.061729054, 7.942473337, 8.839834496, 9.761660036, 10.706096335, 11.681336946, 12.692365663, 13.74909191, 14.850480694, 16], False, 3, [1, 1, 1, 1, 1, 1, 1, 1, 1, 1, 1, 1, 1, 1, 1, 1, 1, 1, 1], False),  # 26
    Part.BSplineCurve([App.Vector(-3.682308, -0.133798, 0), App.Vector(-3.726292, -0.145703, 0), App.Vector(-3.813651, -0.169348, 0), App.Vector(-3.937038, -0.227241, 0), App.Vector(-4.052647, -0.300478, 0), App.Vector(-4.140747, -0.375113, 0), App.Vector(-4.205831, -0.44168, 0), App.Vector(-4.247583, -0.497515, 0), App.Vector(-4.282938, -0.557402, 0), App.Vector(-4.311621, -0.621433, 0), App.Vector(-4.334874, -0.689471, 0), App.Vector(-4.350249, -0.76191, 0), App.Vector(-4.36072, -0.838354, 0), App.Vector(-4.361635, -0.890777, 0), App.Vector(-4.362104, -0.917652, 0)], [4, 1, 1, 1, 1, 1, 1, 1, 1, 1, 1, 1, 4], [0, 1.45316007, 2.886129614, 4.333178494, 5.813891188, 6.563203784, 7.302366613, 8.034684783, 8.780278683, 9.539820685, 10.326642031, 11.142157131, 12], False, 3, [1, 1, 1, 1, 1, 1, 1, 1, 1, 1, 1, 1, 1, 1, 1], False),  # 27
    Part.BSplineCurve([App.Vector(-4.264881, 0.637144, 0), App.Vector(-4.264356, 0.607744, 0), App.Vector(-4.263333, 0.55057, 0), App.Vector(-4.253833, 0.468107, 0), App.Vector(-4.240173, 0.391302, 0), App.Vector(-4.218296, 0.321095, 0), App.Vector(-4.192131, 0.256114, 0), App.Vector(-4.159495, 0.197225, 0), App.Vector(-4.120161, 0.144782, 0), App.Vector(-4.060811, 0.08459, 0), App.Vector(-3.981381, 0.020386, 0), App.Vector(-3.884003, -0.04558, 0), App.Vector(-3.785094, -0.098757, 0), App.Vector(-3.716097, -0.122279, 0), App.Vector(-3.682308, -0.133798, 0)], [4, 1, 1, 1, 1, 1, 1, 1, 1, 1, 1, 1, 4], [0, 1.010202255, 1.964611943, 2.850529142, 3.687511313, 4.4875678, 5.255152423, 5.994947134, 6.733563379, 8.155508563, 9.497649804, 10.774540693, 12], False, 3, [1, 1, 1, 1, 1, 1, 1, 1, 1, 1, 1, 1, 1, 1, 1], False),  # 28
    Part.BSplineCurve([App.Vector(-3.144547, 1.529613, 0), App.Vector(-3.189904, 1.529081, 0), App.Vector(-3.277779, 1.52805, 0), App.Vector(-3.4049, 1.514541, 0), App.Vector(-3.523553, 1.494379, 0), App.Vector(-3.633615, 1.466089, 0), App.Vector(-3.734609, 1.428327, 0), App.Vector(-3.82751, 1.384079, 0), App.Vector(-3.9106, 1.329398, 0), App.Vector(-3.985296, 1.268041, 0), App.Vector(-4.050146, 1.200073, 0), App.Vector(-4.107558, 1.129337, 0), App.Vector(-4.156518, 1.055508, 0), App.Vector(-4.196567, 0.978195, 0), App.Vector(-4.226748, 0.897213, 0), App.Vector(-4.249069, 0.813332, 0), App.Vector(-4.262128, 0.726166, 0), App.Vector(-4.263956, 0.667062, 0), App.Vector(-4.264881, 0.637144, 0)], [4, 1, 1, 1, 1, 1, 1, 1, 1, 1, 1, 1, 1, 1, 1, 1, 4], [0, 1.351264111, 2.61796166, 3.805207185, 4.93632989, 5.998818899, 7.01464861, 7.996269277, 8.955682505, 9.889591814, 10.791143633, 11.668074067, 12.525303062, 13.380237285, 14.238661118, 15.108419509, 16], False, 3, [1, 1, 1, 1, 1, 1, 1, 1, 1, 1, 1, 1, 1, 1, 1, 1, 1, 1, 1], False),  # 29
    Part.LineSegment(App.Vector(-3.144547, 1.529613, 0), App.Vector(-1.980159, 1.529613, 0)),  # 30
    Part.LineSegment(App.Vector(-1.980159, 1.529613, 0), App.Vector(-1.980159, -1.970387, 0)),  # 31
    Part.LineSegment(App.Vector(-1.980159, -1.970387, 0), App.Vector(-3.092898, -1.970387, 0)),  # 32
    Part.BSplineCurve([App.Vector(-2.98808, -1.581498, 0), App.Vector(-3.02126, -1.581098, 0), App.Vector(-3.085417, -1.580324, 0), App.Vector(-3.178725, -1.57332, 0), App.Vector(-3.26576, -1.562252, 0), App.Vector(-3.347, -1.546326, 0), App.Vector(-3.422013, -1.525694, 0), App.Vector(-3.491636, -1.502117, 0), App.Vector(-3.554439, -1.471864, 0), App.Vector(-3.611742, -1.437817, 0), App.Vector(-3.663856, -1.398559, 0), App.Vector(-3.707226, -1.350238, 0), App.Vector(-3.745111, -1.295918, 0), App.Vector(-3.775248, -1.233778, 0), App.Vector(-3.798867, -1.164895, 0), App.Vector(-3.815086, -1.088894, 0), App.Vector(-3.826239, -1.006089, 0), App.Vector(-3.826992, -0.948328, 0), App.Vector(-3.827381, -0.918412, 0)], [4, 1, 1, 1, 1, 1, 1, 1, 1, 1, 1, 1, 1, 1, 1, 1, 4], [0, 1.29022492, 2.494757742, 3.636692837, 4.700703348, 5.711105968, 6.660919749, 7.55499816, 8.41621199, 9.251305884, 10.080574554, 10.929999695, 11.819512014, 12.756789841, 13.755368835, 14.837449935, 16], False, 3, [1, 1, 1, 1, 1, 1, 1, 1, 1, 1, 1, 1, 1, 1, 1, 1, 1, 1, 1], False),  # 33
    Part.LineSegment(App.Vector(-2.98808, -1.581498, 0), App.Vector(-2.46627, -1.581498, 0)),  # 34
    Part.LineSegment(App.Vector(-2.46627, -1.581498, 0), App.Vector(-2.46627, -0.317609, 0)),  # 35
    Part.LineSegment(App.Vector(-2.46627, -0.317609, 0), App.Vector(-3.05644, -0.317609, 0)),  # 36
    Part.BSplineCurve([App.Vector(-3.827381, -0.918412, 0), App.Vector(-3.82673, -0.891778, 0), App.Vector(-3.82547, -0.840275, 0), App.Vector(-3.813622, -0.766227, 0), App.Vector(-3.795974, -0.698125, 0), App.Vector(-3.769745, -0.636131, 0), App.Vector(-3.735605, -0.580579, 0), App.Vector(-3.693639, -0.531496, 0), App.Vector(-3.645714, -0.487069, 0), App.Vector(-3.569651, -0.440009, 0), App.Vector(-3.467505, -0.390632, 0), App.Vector(-3.336738, -0.347898, 0), App.Vector(-3.198723, -0.32223, 0), App.Vector(-3.104401, -0.319167, 0), App.Vector(-3.05644, -0.317609, 0)], [4, 1, 1, 1, 1, 1, 1, 1, 1, 1, 1, 1, 4], [0, 0.866253386, 1.67510178, 2.434722173, 3.151046633, 3.85773122, 4.547787893, 5.247907508, 5.974772253, 7.449027636, 8.931826037, 10.439873103, 12], False, 3, [1, 1, 1, 1, 1, 1, 1, 1, 1, 1, 1, 1, 1, 1, 1], False),  # 37
    Part.BSplineCurve([App.Vector(-3.146066, 0.07128, 0), App.Vector(-3.187709, 0.072851, 0), App.Vector(-3.268704, 0.075906, 0), App.Vector(-3.385941, 0.100692, 0), App.Vector(-3.493971, 0.142144, 0), App.Vector(-3.576892, 0.18934, 0), App.Vector(-3.63604, 0.236345, 0), App.Vector(-3.674221, 0.278138, 0), App.Vector(-3.707419, 0.324444, 0), App.Vector(-3.733054, 0.37708, 0), App.Vector(-3.753527, 0.43441, 0), App.Vector(-3.768996, 0.496932, 0), App.Vector(-3.776898, 0.565036, 0), App.Vector(-3.778132, 0.612061, 0), App.Vector(-3.77877, 0.636384, 0)], [4, 1, 1, 1, 1, 1, 1, 1, 1, 1, 1, 1, 4], [0, 1.554696485, 3.023919482, 4.452043441, 5.863437086, 6.56954581, 7.265637394, 7.97155604, 8.690658831, 9.444622919, 10.24296498, 11.091186116, 12], False, 3, [1, 1, 1, 1, 1, 1, 1, 1, 1, 1, 1, 1, 1, 1, 1], False),  # 38
    Part.LineSegment(App.Vector(-3.146066, 0.07128, 0), App.Vector(-2.46627, 0.07128, 0)),  # 39
    Part.LineSegment(App.Vector(-2.46627, 0.07128, 0), App.Vector(-2.46627, 1.140724, 0)),  # 40
    Part.LineSegment(App.Vector(-2.46627, 1.140724, 0), App.Vector(-3.169612, 1.140724, 0)),  # 41
    Part.BSplineCurve([App.Vector(-3.77877, 0.636384, 0), App.Vector(-3.778042, 0.657407, 0), App.Vector(-3.776624, 0.698325, 0), App.Vector(-3.769834, 0.757937, 0), App.Vector(-3.754667, 0.812623, 0), App.Vector(-3.736289, 0.863625, 0), App.Vector(-3.710596, 0.909089, 0), App.Vector(-3.681078, 0.951386, 0), App.Vector(-3.643868, 0.98736, 0), App.Vector(-3.588937, 1.031299, 0), App.Vector(-3.510067, 1.075516, 0), App.Vector(-3.405662, 1.113523, 0), App.Vector(-3.290889, 1.13681, 0), App.Vector(-3.210994, 1.139389, 0), App.Vector(-3.169612, 1.140724, 0)], [4, 1, 1, 1, 1, 1, 1, 1, 1, 1, 1, 1, 4], [0, 0.845315215, 1.645281317, 2.402790008, 3.120741521, 3.81733108, 4.494943814, 5.185490554, 5.887702635, 7.318551937, 8.792577877, 10.338730048, 12], False, 3, [1, 1, 1, 1, 1, 1, 1, 1, 1, 1, 1, 1, 1, 1, 1], False),  # 42
], False)
sketch3.addConstraint([
    Sketcher.Constraint("Block", 0),
    Sketcher.Constraint("Block", 4),
    Sketcher.Constraint("Block", 5),
    Sketcher.Constraint("Block", 9),
    Sketcher.Constraint("Block", 10),
    Sketcher.Constraint("Block", 11),
    Sketcher.Constraint("Block", 12),
    Sketcher.Constraint("Block", 13),
    Sketcher.Constraint("Block", 14),
    Sketcher.Constraint("Block", 16),
    Sketcher.Constraint("Block", 17),
    Sketcher.Constraint("Block", 18),
    Sketcher.Constraint("Block", 19),
    Sketcher.Constraint("Block", 20),
    Sketcher.Constraint("Block", 21),
    Sketcher.Constraint("Block", 25),
    Sketcher.Constraint("Block", 26),
    Sketcher.Constraint("Block", 27),
    Sketcher.Constraint("Block", 28),
    Sketcher.Constraint("Block", 29),
    Sketcher.Constraint("Block", 33),
    Sketcher.Constraint("Block", 37),
    Sketcher.Constraint("Block", 38),
    Sketcher.Constraint("Block", 42),
    Sketcher.Constraint("Coincident", 0, 1, 1, 1),
    Sketcher.Constraint("Coincident", 1, 2, 2, 1),
    Sketcher.Constraint("Coincident", 2, 2, 3, 1),
    Sketcher.Constraint("Coincident", 3, 2, 4, 2),
    Sketcher.Constraint("Coincident", 5, 1, 6, 1),
    Sketcher.Constraint("Coincident", 6, 2, 7, 1),
    Sketcher.Constraint("Coincident", 7, 2, 8, 1),
    Sketcher.Constraint("Coincident", 8, 2, 9, 2),
    Sketcher.Constraint("Coincident", 14, 1, 15, 1),
    Sketcher.Constraint("Coincident", 15, 2, 16, 2),
    Sketcher.Constraint("Coincident", 21, 1, 22, 1),
    Sketcher.Constraint("Coincident", 22, 2, 23, 1),
    Sketcher.Constraint("Coincident", 23, 2, 24, 1),
    Sketcher.Constraint("Coincident", 24, 2, 25, 2),
    Sketcher.Constraint("Coincident", 29, 1, 30, 1),
    Sketcher.Constraint("Coincident", 30, 2, 31, 1),
    Sketcher.Constraint("Coincident", 31, 2, 32, 1),
    Sketcher.Constraint("Coincident", 32, 2, 26, 2),
    Sketcher.Constraint("Coincident", 33, 1, 34, 1),
    Sketcher.Constraint("Coincident", 34, 2, 35, 1),
    Sketcher.Constraint("Coincident", 35, 2, 36, 1),
    Sketcher.Constraint("Coincident", 36, 2, 37, 2),
    Sketcher.Constraint("Coincident", 38, 1, 39, 1),
    Sketcher.Constraint("Coincident", 39, 2, 40, 1),
    Sketcher.Constraint("Coincident", 40, 2, 41, 1),
    Sketcher.Constraint("Coincident", 41, 2, 42, 2),
    Sketcher.Constraint("Vertical", 1),
    Sketcher.Constraint("Horizontal", 2),
    Sketcher.Constraint("Vertical", 3),
    Sketcher.Constraint("Vertical", 6),
    Sketcher.Constraint("Horizontal", 7),
    Sketcher.Constraint("Vertical", 8),
    Sketcher.Constraint("Vertical", 22),
    Sketcher.Constraint("Horizontal", 23),
    Sketcher.Constraint("Vertical", 24),
    Sketcher.Constraint("Horizontal", 30),
    Sketcher.Constraint("Vertical", 31),
    Sketcher.Constraint("Horizontal", 32),
    Sketcher.Constraint("Horizontal", 34),
    Sketcher.Constraint("Vertical", 35),
    Sketcher.Constraint("Horizontal", 36),
    Sketcher.Constraint("Horizontal", 39),
    Sketcher.Constraint("Vertical", 40),
    Sketcher.Constraint("Horizontal", 41),
    Sketcher.Constraint("Horizontal", 2, 2, 6, 2),
    Sketcher.Constraint("Horizontal", 7, 2, 30, 2),
    Sketcher.Constraint("Vertical", 35, 2, 39, 2),
    Sketcher.Constraint("DistanceX", 30, 1, 30, 2, 1.164388),
    Sketcher.Constraint("DistanceX", 34, 1, 34, 2, 0.52181),
    Sketcher.Constraint("DistanceY", 22, 1, 22, 2, 0.126085),
])
pad3 = body.newObject("PartDesign::Pad", "Pad002")
pad3.Profile = sketch3
pad3.Length = 0.2
pad3.Reversed = True

doc.recompute()
